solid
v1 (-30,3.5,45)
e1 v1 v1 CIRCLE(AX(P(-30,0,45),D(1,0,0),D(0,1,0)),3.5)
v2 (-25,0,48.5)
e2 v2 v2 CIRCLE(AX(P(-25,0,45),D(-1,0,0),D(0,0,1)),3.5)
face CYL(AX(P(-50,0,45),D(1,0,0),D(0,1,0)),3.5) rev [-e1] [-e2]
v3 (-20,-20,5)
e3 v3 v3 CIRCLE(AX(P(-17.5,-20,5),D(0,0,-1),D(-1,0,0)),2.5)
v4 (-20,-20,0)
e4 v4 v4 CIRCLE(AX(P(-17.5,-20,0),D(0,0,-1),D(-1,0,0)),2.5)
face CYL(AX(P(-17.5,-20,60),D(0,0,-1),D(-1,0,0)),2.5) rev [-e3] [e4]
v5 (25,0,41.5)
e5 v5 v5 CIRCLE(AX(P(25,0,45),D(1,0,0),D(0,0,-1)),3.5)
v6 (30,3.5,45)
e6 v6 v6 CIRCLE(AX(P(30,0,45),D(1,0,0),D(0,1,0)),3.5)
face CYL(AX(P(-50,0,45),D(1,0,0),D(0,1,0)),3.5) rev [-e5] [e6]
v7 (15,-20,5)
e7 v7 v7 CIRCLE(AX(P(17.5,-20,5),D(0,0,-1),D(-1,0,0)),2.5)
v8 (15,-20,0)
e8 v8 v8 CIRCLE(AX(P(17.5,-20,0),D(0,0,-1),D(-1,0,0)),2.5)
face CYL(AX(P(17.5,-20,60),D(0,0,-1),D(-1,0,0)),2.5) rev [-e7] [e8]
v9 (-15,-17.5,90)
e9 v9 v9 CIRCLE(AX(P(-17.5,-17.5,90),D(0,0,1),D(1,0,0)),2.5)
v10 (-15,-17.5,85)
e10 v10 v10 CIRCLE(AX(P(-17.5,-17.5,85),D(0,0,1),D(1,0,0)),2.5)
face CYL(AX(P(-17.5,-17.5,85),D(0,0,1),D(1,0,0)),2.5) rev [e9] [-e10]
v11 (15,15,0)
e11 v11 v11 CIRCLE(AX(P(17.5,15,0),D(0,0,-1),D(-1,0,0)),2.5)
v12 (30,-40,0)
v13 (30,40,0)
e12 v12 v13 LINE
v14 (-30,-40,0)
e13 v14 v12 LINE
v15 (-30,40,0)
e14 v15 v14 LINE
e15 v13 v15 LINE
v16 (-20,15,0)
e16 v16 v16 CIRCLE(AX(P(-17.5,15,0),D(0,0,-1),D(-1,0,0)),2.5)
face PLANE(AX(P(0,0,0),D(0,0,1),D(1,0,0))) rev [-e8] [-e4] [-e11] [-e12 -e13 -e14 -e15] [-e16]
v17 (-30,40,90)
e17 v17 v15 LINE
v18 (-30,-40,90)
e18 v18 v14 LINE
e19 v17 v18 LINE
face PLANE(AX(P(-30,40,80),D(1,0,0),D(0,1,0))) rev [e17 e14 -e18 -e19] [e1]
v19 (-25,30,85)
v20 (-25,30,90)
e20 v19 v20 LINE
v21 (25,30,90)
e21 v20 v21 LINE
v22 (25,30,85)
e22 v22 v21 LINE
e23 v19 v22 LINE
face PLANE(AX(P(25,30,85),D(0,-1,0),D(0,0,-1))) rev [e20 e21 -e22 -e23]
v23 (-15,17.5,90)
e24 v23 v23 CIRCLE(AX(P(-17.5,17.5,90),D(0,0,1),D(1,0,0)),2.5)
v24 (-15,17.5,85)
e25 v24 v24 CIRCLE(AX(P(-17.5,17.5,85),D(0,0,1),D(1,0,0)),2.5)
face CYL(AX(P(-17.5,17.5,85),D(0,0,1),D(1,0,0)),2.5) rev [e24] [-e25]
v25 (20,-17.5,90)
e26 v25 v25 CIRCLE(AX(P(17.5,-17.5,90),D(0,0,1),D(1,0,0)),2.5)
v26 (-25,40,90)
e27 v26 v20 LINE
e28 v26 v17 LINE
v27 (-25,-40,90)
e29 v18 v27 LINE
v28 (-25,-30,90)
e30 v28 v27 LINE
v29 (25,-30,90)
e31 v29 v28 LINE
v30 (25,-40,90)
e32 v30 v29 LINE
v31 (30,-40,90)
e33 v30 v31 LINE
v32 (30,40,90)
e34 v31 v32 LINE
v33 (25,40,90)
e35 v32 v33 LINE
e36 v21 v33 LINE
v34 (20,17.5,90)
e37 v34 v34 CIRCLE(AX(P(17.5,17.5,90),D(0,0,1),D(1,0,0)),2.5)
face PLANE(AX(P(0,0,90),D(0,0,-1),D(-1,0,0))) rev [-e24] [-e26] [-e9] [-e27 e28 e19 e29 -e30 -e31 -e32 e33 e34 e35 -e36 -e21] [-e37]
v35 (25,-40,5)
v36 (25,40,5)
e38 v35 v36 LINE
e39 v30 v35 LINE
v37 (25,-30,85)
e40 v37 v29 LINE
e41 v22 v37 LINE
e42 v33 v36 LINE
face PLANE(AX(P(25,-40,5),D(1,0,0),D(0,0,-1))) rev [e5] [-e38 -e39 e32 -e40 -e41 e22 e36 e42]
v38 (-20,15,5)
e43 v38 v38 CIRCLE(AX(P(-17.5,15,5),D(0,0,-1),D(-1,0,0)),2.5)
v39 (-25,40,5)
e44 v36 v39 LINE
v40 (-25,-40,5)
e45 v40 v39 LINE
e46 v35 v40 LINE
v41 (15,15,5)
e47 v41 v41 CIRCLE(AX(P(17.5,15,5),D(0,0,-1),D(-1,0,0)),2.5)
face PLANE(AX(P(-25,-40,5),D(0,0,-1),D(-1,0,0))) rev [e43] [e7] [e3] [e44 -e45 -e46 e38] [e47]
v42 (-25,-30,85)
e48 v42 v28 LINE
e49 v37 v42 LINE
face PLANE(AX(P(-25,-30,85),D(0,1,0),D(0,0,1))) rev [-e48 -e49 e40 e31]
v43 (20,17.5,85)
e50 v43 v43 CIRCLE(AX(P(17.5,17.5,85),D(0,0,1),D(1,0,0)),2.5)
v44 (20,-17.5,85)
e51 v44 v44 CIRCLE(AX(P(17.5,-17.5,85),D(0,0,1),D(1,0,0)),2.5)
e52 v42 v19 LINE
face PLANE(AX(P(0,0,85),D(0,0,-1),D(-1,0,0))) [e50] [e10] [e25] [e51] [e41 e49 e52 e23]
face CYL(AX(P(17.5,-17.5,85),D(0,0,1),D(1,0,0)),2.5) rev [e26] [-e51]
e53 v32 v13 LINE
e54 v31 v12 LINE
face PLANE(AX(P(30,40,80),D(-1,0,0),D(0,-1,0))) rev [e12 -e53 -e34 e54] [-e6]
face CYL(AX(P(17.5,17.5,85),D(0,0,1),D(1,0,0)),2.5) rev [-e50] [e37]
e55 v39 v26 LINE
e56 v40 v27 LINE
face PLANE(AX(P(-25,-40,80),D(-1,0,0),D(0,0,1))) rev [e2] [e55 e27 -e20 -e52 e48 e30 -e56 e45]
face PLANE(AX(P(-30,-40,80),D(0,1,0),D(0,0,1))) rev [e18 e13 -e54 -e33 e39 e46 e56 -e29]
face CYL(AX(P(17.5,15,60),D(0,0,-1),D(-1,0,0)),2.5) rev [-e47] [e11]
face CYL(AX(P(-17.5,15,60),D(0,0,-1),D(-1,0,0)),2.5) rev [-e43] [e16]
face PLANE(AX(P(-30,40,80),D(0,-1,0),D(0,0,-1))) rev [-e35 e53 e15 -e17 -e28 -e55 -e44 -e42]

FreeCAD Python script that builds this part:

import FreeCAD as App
import Part
import Sketcher

doc = App.newDocument("Part")
body = doc.addObject("PartDesign::Body", "Body")

# Sketch on XY plane
sketch1 = doc.addObject("Sketcher::SketchObject", "Sketch")
body.addObject(sketch1)
sketch1.AttachmentSupport = (doc.XY_Plane, [""])
sketch1.MapMode = "FlatFace"
sketch1.addGeometry(Part.LineSegment(App.Vector(-30, 40, 0), App.Vector(-30, -40, 0)), False)
sketch1.addGeometry(Part.LineSegment(App.Vector(-30, -40, 0), App.Vector(30, -40, 0)), False)
sketch1.addGeometry(Part.LineSegment(App.Vector(30, -40, 0), App.Vector(30, 40, 0)), False)
sketch1.addGeometry(Part.LineSegment(App.Vector(30, 40, 0), App.Vector(-30, 40, 0)), False)
sketch1.addConstraint(Sketcher.Constraint("Coincident", 0, 2, 1, 1))
sketch1.addConstraint(Sketcher.Constraint("Coincident", 1, 2, 2, 1))
sketch1.addConstraint(Sketcher.Constraint("Coincident", 2, 2, 3, 1))
sketch1.addConstraint(Sketcher.Constraint("Coincident", 3, 2, 0, 1))
sketch1.addConstraint(Sketcher.Constraint("Vertical", 0))
sketch1.addConstraint(Sketcher.Constraint("Horizontal", 1))
sketch1.addConstraint(Sketcher.Constraint("Vertical", 2))
sketch1.addConstraint(Sketcher.Constraint("Horizontal", 3))
sketch1.addConstraint(Sketcher.Constraint("Symmetric", 0, 2, 2, 2, -1, 1))
sketch1.addConstraint(Sketcher.Constraint("DistanceX", 1, 1, 1, 2, 60.0))
sketch1.addConstraint(Sketcher.Constraint("DistanceY", 0, 2, 0, 1, 80.0))
pad1 = doc.addObject("PartDesign::Pad", "Pad")
body.addObject(pad1)
pad1.Profile = sketch1
pad1.Length = 80

# Sketch on XZ plane
sketch2 = doc.addObject("Sketcher::SketchObject", "Sketch001")
body.addObject(sketch2)
sketch2.AttachmentSupport = (doc.XZ_Plane, [""])
sketch2.MapMode = "FlatFace"
sketch2.AttachmentOffset = App.Placement(App.Vector(0, 0, -40), App.Rotation())
sketch2.addGeometry(Part.LineSegment(App.Vector(-25, 5, 0), App.Vector(-25, 80, 0)), False)
sketch2.addGeometry(Part.LineSegment(App.Vector(-25, 80, 0), App.Vector(25, 80, 0)), False)
sketch2.addGeometry(Part.LineSegment(App.Vector(25, 80, 0), App.Vector(25, 5, 0)), False)
sketch2.addGeometry(Part.LineSegment(App.Vector(25, 5, 0), App.Vector(-25, 5, 0)), False)
sketch2.addConstraint(Sketcher.Constraint("Coincident", 0, 2, 1, 1))
sketch2.addConstraint(Sketcher.Constraint("Coincident", 1, 2, 2, 1))
sketch2.addConstraint(Sketcher.Constraint("Coincident", 2, 2, 3, 1))
sketch2.addConstraint(Sketcher.Constraint("Coincident", 3, 2, 0, 1))
sketch2.addConstraint(Sketcher.Constraint("Vertical", 0))
sketch2.addConstraint(Sketcher.Constraint("Horizontal", 1))
sketch2.addConstraint(Sketcher.Constraint("Vertical", 2))
sketch2.addConstraint(Sketcher.Constraint("Horizontal", 3))
sketch2.addConstraint(Sketcher.Constraint("DistanceX", 1, 1, 1, 2, 50.0))
sketch2.addConstraint(Sketcher.Constraint("DistanceY", 0, 1, 0, 2, 75.0))
sketch2.addConstraint(Sketcher.Constraint("DistanceX", 0, 2, -1, 1, 25.0))
sketch2.addConstraint(Sketcher.Constraint("DistanceY", -1, 1, 0, 2, 80.0))
pocket1 = doc.addObject("PartDesign::Pocket", "Pocket")
body.addObject(pocket1)
pocket1.Profile = sketch2
pocket1.Length = 80
pocket1.Reversed = True

# Sketch on XY plane
sketch3 = doc.addObject("Sketcher::SketchObject", "Sketch002")
body.addObject(sketch3)
sketch3.AttachmentSupport = (doc.XY_Plane, [""])
sketch3.MapMode = "FlatFace"
sketch3.addGeometry(Part.Circle(App.Vector(17.5, 15, 0), App.Vector(0, 0, 1), 2.5), False)
sketch3.addGeometry(Part.Circle(App.Vector(-17.5, 15, 0), App.Vector(0, 0, 1), 2.5), False)
sketch3.addGeometry(Part.Circle(App.Vector(17.5, -20, 0), App.Vector(0, 0, 1), 2.5), False)
sketch3.addGeometry(Part.Circle(App.Vector(-17.5, -20, 0), App.Vector(0, 0, 1), 2.5), False)
sketch3.addConstraint(Sketcher.Constraint("Equal", 0, 1))
sketch3.addConstraint(Sketcher.Constraint("Equal", 1, 2))
sketch3.addConstraint(Sketcher.Constraint("Equal", 2, 3))
sketch3.addConstraint(Sketcher.Constraint("Symmetric", 0, 3, 1, 3, -2))
sketch3.addConstraint(Sketcher.Constraint("Symmetric", 2, 3, 3, 3, -2))
sketch3.addConstraint(Sketcher.Constraint("Vertical", 0, 3, 2, 3))
sketch3.addConstraint(Sketcher.Constraint("Diameter", 0, 5.0))
sketch3.addConstraint(Sketcher.Constraint("DistanceY", -1, 1, 0, 3, 15.0))
sketch3.addConstraint(Sketcher.Constraint("DistanceY", 2, 3, -1, 1, 20.0))
sketch3.addConstraint(Sketcher.Constraint("DistanceX", 1, 3, 0, 3, 35.0))
pocket2 = doc.addObject("PartDesign::Pocket", "Pocket001")
body.addObject(pocket2)
pocket2.Profile = sketch3
pocket2.Length = 60
pocket2.Reversed = True

# Sketch on YZ plane
sketch4 = doc.addObject("Sketcher::SketchObject", "Sketch003")
body.addObject(sketch4)
sketch4.AttachmentSupport = (doc.YZ_Plane, [""])
sketch4.MapMode = "FlatFace"
sketch4.AttachmentOffset = App.Placement(App.Vector(0, 0, 30), App.Rotation())
sketch4.addGeometry(Part.Circle(App.Vector(0, 45, 0), App.Vector(0, 0, 1), 3.5), False)
sketch4.addConstraint(Sketcher.Constraint("PointOnObject", 0, 3, -2))
sketch4.addConstraint(Sketcher.Constraint("Diameter", 0, 7.0))
sketch4.addConstraint(Sketcher.Constraint("DistanceY", -1, 1, 0, 3, 45.0))
pocket3 = doc.addObject("PartDesign::Pocket", "Pocket002")
body.addObject(pocket3)
pocket3.Profile = sketch4
pocket3.Length = 80

# Sketch on XY plane
sketch5 = doc.addObject("Sketcher::SketchObject", "Sketch004")
body.addObject(sketch5)
sketch5.AttachmentSupport = (doc.XY_Plane, [""])
sketch5.MapMode = "FlatFace"
sketch5.AttachmentOffset = App.Placement(App.Vector(0, 0, 80), App.Rotation())
sketch5.addGeometry(Part.LineSegment(App.Vector(-30, 40, 0), App.Vector(-30, -40, 0)), False)
sketch5.addGeometry(Part.LineSegment(App.Vector(-30, -40, 0), App.Vector(-25, -40, 0)), False)
sketch5.addGeometry(Part.LineSegment(App.Vector(-25, -40, 0), App.Vector(-25, 40, 0)), False)
sketch5.addGeometry(Part.LineSegment(App.Vector(-25, 40, 0), App.Vector(-30, 40, 0)), False)
sketch5.addGeometry(Part.LineSegment(App.Vector(25, 40, 0), App.Vector(25, -40, 0)), False)
sketch5.addGeometry(Part.LineSegment(App.Vector(25, -40, 0), App.Vector(30, -40, 0)), False)
sketch5.addGeometry(Part.LineSegment(App.Vector(30, -40, 0), App.Vector(30, 40, 0)), False)
sketch5.addGeometry(Part.LineSegment(App.Vector(30, 40, 0), App.Vector(25, 40, 0)), False)
sketch5.addConstraint(Sketcher.Constraint("Coincident", 0, 2, 1, 1))
sketch5.addConstraint(Sketcher.Constraint("Coincident", 1, 2, 2, 1))
sketch5.addConstraint(Sketcher.Constraint("Coincident", 2, 2, 3, 1))
sketch5.addConstraint(Sketcher.Constraint("Coincident", 3, 2, 0, 1))
sketch5.addConstraint(Sketcher.Constraint("Coincident", 4, 2, 5, 1))
sketch5.addConstraint(Sketcher.Constraint("Coincident", 5, 2, 6, 1))
sketch5.addConstraint(Sketcher.Constraint("Coincident", 6, 2, 7, 1))
sketch5.addConstraint(Sketcher.Constraint("Coincident", 7, 2, 4, 1))
sketch5.addConstraint(Sketcher.Constraint("Vertical", 0))
sketch5.addConstraint(Sketcher.Constraint("Horizontal", 1))
sketch5.addConstraint(Sketcher.Constraint("Vertical", 2))
sketch5.addConstraint(Sketcher.Constraint("Horizontal", 3))
sketch5.addConstraint(Sketcher.Constraint("Vertical", 4))
sketch5.addConstraint(Sketcher.Constraint("Horizontal", 5))
sketch5.addConstraint(Sketcher.Constraint("Vertical", 6))
sketch5.addConstraint(Sketcher.Constraint("Horizontal", 7))
sketch5.addConstraint(Sketcher.Constraint("Symmetric", 2, 2, 4, 2, -1, 1))
sketch5.addConstraint(Sketcher.Constraint("Symmetric", 0, 2, 6, 2, -1, 1))
sketch5.addConstraint(Sketcher.Constraint("Horizontal", 1, 2, 4, 2))
sketch5.addConstraint(Sketcher.Constraint("DistanceX", 1, 1, 1, 2, 5.0))
sketch5.addConstraint(Sketcher.Constraint("DistanceY", 0, 2, 0, 1, 80.0))
sketch5.addConstraint(Sketcher.Constraint("DistanceX", 0, 2, -1, 1, 30.0))
pad2 = doc.addObject("PartDesign::Pad", "Pad001")
body.addObject(pad2)
pad2.Profile = sketch5
pad2.Length = 5

# Sketch on XY plane
sketch6 = doc.addObject("Sketcher::SketchObject", "Sketch005")
body.addObject(sketch6)
sketch6.AttachmentSupport = (doc.XY_Plane, [""])
sketch6.MapMode = "FlatFace"
sketch6.AttachmentOffset = App.Placement(App.Vector(0, 0, 85), App.Rotation())
sketch6.addGeometry(Part.LineSegment(App.Vector(-30, 40, 0), App.Vector(-30, -40, 0)), False)
sketch6.addGeometry(Part.LineSegment(App.Vector(-30, -40, 0), App.Vector(30, -40, 0)), False)
sketch6.addGeometry(Part.LineSegment(App.Vector(30, -40, 0), App.Vector(30, 40, 0)), False)
sketch6.addGeometry(Part.LineSegment(App.Vector(30, 40, 0), App.Vector(-30, 40, 0)), False)
sketch6.addConstraint(Sketcher.Constraint("Coincident", 0, 2, 1, 1))
sketch6.addConstraint(Sketcher.Constraint("Coincident", 1, 2, 2, 1))
sketch6.addConstraint(Sketcher.Constraint("Coincident", 2, 2, 3, 1))
sketch6.addConstraint(Sketcher.Constraint("Coincident", 3, 2, 0, 1))
sketch6.addConstraint(Sketcher.Constraint("Vertical", 0))
sketch6.addConstraint(Sketcher.Constraint("Horizontal", 1))
sketch6.addConstraint(Sketcher.Constraint("Vertical", 2))
sketch6.addConstraint(Sketcher.Constraint("Horizontal", 3))
sketch6.addConstraint(Sketcher.Constraint("Symmetric", 0, 2, 2, 2, -1, 1))
sketch6.addConstraint(Sketcher.Constraint("DistanceX", 1, 1, 1, 2, 60.0))
sketch6.addConstraint(Sketcher.Constraint("DistanceY", 0, 2, 0, 1, 80.0))
pad3 = doc.addObject("PartDesign::Pad", "Pad002")
body.addObject(pad3)
pad3.Profile = sketch6
pad3.Length = 5

# Sketch on XY plane
sketch7 = doc.addObject("Sketcher::SketchObject", "Sketch006")
body.addObject(sketch7)
sketch7.AttachmentSupport = (doc.XY_Plane, [""])
sketch7.MapMode = "FlatFace"
sketch7.AttachmentOffset = App.Placement(App.Vector(0, 0, 90), App.Rotation())
sketch7.addGeometry(Part.Circle(App.Vector(-17.5, 17.5, 0), App.Vector(0, 0, 1), 2.5), False)
sketch7.addGeometry(Part.Circle(App.Vector(17.5, 17.5, 0), App.Vector(0, 0, 1), 2.5), False)
sketch7.addGeometry(Part.Circle(App.Vector(17.5, -17.5, 0), App.Vector(0, 0, 1), 2.5), False)
sketch7.addGeometry(Part.Circle(App.Vector(-17.5, -17.5, 0), App.Vector(0, 0, 1), 2.5), False)
sketch7.addConstraint(Sketcher.Constraint("Equal", 0, 1))
sketch7.addConstraint(Sketcher.Constraint("Equal", 1, 2))
sketch7.addConstraint(Sketcher.Constraint("Equal", 2, 3))
sketch7.addConstraint(Sketcher.Constraint("Symmetric", 0, 3, 2, 3, -1, 1))
sketch7.addConstraint(Sketcher.Constraint("Symmetric", 1, 3, 3, 3, -1, 1))
sketch7.addConstraint(Sketcher.Constraint("Symmetric", 0, 3, 1, 3, -2))
sketch7.addConstraint(Sketcher.Constraint("Diameter", 0, 5.0))
sketch7.addConstraint(Sketcher.Constraint("DistanceX", 0, 3, 1, 3, 35.0))
sketch7.addConstraint(Sketcher.Constraint("DistanceY", 2, 3, 1, 3, 35.0))
pocket4 = doc.addObject("PartDesign::Pocket", "Pocket003")
body.addObject(pocket4)
pocket4.Profile = sketch7
pocket4.Length = 5

# Sketch on XY plane
sketch8 = doc.addObject("Sketcher::SketchObject", "Sketch007")
body.addObject(sketch8)
sketch8.AttachmentSupport = (doc.XY_Plane, [""])
sketch8.MapMode = "FlatFace"
sketch8.AttachmentOffset = App.Placement(App.Vector(0, 0, 90), App.Rotation())
sketch8.addGeometry(Part.LineSegment(App.Vector(-25, 40, 0), App.Vector(-25, 30, 0)), False)
sketch8.addGeometry(Part.LineSegment(App.Vector(-25, 30, 0), App.Vector(25, 30, 0)), False)
sketch8.addGeometry(Part.LineSegment(App.Vector(25, 30, 0), App.Vector(25, 40, 0)), False)
sketch8.addGeometry(Part.LineSegment(App.Vector(25, 40, 0), App.Vector(-25, 40, 0)), False)
sketch8.addGeometry(Part.LineSegment(App.Vector(-25, -30, 0), App.Vector(-25, -40, 0)), False)
sketch8.addGeometry(Part.LineSegment(App.Vector(-25, -40, 0), App.Vector(25, -40, 0)), False)
sketch8.addGeometry(Part.LineSegment(App.Vector(25, -40, 0), App.Vector(25, -30, 0)), False)
sketch8.addGeometry(Part.LineSegment(App.Vector(25, -30, 0), App.Vector(-25, -30, 0)), False)
sketch8.addConstraint(Sketcher.Constraint("Coincident", 0, 2, 1, 1))
sketch8.addConstraint(Sketcher.Constraint("Coincident", 1, 2, 2, 1))
sketch8.addConstraint(Sketcher.Constraint("Coincident", 2, 2, 3, 1))
sketch8.addConstraint(Sketcher.Constraint("Coincident", 3, 2, 0, 1))
sketch8.addConstraint(Sketcher.Constraint("Coincident", 4, 2, 5, 1))
sketch8.addConstraint(Sketcher.Constraint("Coincident", 5, 2, 6, 1))
sketch8.addConstraint(Sketcher.Constraint("Coincident", 6, 2, 7, 1))
sketch8.addConstraint(Sketcher.Constraint("Coincident", 7, 2, 4, 1))
sketch8.addConstraint(Sketcher.Constraint("Vertical", 0))
sketch8.addConstraint(Sketcher.Constraint("Horizontal", 1))
sketch8.addConstraint(Sketcher.Constraint("Vertical", 2))
sketch8.addConstraint(Sketcher.Constraint("Horizontal", 3))
sketch8.addConstraint(Sketcher.Constraint("Vertical", 4))
sketch8.addConstraint(Sketcher.Constraint("Horizontal", 5))
sketch8.addConstraint(Sketcher.Constraint("Vertical", 6))
sketch8.addConstraint(Sketcher.Constraint("Horizontal", 7))
sketch8.addConstraint(Sketcher.Constraint("Symmetric", 2, 2, 4, 2, -1, 1))
sketch8.addConstraint(Sketcher.Constraint("Symmetric", 0, 2, 6, 2, -1, 1))
sketch8.addConstraint(Sketcher.Constraint("Vertical", 3, 2, 4, 2))
sketch8.addConstraint(Sketcher.Constraint("DistanceX", 1, 1, 1, 2, 50.0))
sketch8.addConstraint(Sketcher.Constraint("DistanceY", 0, 2, 0, 1, 10.0))
sketch8.addConstraint(Sketcher.Constraint("DistanceY", -1, 1, 0, 2, 30.0))
pocket5 = doc.addObject("PartDesign::Pocket", "Pocket004")
body.addObject(pocket5)
pocket5.Profile = sketch8
pocket5.Length = 5

doc.recompute()
